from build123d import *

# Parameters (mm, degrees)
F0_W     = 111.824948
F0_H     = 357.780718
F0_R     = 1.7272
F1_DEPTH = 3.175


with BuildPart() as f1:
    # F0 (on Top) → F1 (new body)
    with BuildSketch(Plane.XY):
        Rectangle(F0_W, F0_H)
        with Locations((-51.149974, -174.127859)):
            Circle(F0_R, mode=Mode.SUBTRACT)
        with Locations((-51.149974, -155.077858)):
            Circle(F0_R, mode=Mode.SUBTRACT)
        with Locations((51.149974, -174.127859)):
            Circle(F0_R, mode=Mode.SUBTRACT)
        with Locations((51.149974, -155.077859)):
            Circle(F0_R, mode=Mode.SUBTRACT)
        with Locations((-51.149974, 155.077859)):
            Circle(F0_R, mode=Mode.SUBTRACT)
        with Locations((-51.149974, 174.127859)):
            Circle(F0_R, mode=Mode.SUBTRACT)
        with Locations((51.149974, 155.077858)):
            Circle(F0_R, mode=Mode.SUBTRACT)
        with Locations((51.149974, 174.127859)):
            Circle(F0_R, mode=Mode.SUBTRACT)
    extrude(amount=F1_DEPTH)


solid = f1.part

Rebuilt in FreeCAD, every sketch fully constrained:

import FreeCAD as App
import Part
import Sketcher
Q = App.Units.Quantity


def add_polygon(sketch, points):
    """Adds a closed chain of lines whose ends are joined by coincident constraints."""
    first, n = sketch.GeometryCount, len(points)
    for a, b in zip(points, points[1:] + points[:1]):
        sketch.addGeometry(Part.LineSegment(App.Vector(*a, 0), App.Vector(*b, 0)), False)
    for i in range(n):
        sketch.addConstraint(Sketcher.Constraint("Coincident", first + i, 2, first + (i + 1) % n, 1))

doc = App.newDocument("Part")
body = doc.addObject("PartDesign::Body", "Body")

# Sketch on XY plane
sketch1 = doc.addObject("Sketcher::SketchObject", "Sketch")
body.addObject(sketch1)
sketch1.AttachmentSupport = (doc.XY_Plane, [""])
sketch1.MapMode = "FlatFace"
add_polygon(sketch1, [(-55.9, 178.9), (-55.9, -178.9), (55.9, -178.9), (55.9, 178.9)])  # lines 0-3
sketch1.addGeometry(Part.Circle(App.Vector(-51.1, -174.1, 0), App.Vector(0, 0, 1), 1.7), False)  # 4
sketch1.addGeometry(Part.Circle(App.Vector(-51.1, -155.1, 0), App.Vector(0, 0, 1), 1.7), False)  # 5
sketch1.addGeometry(Part.Circle(App.Vector(51.1, -174.1, 0), App.Vector(0, 0, 1), 1.7), False)  # 6
sketch1.addGeometry(Part.Circle(App.Vector(51.1, -155.1, 0), App.Vector(0, 0, 1), 1.7), False)  # 7
sketch1.addGeometry(Part.Circle(App.Vector(-51.1, 155.1, 0), App.Vector(0, 0, 1), 1.7), False)  # 8
sketch1.addGeometry(Part.Circle(App.Vector(-51.1, 174.1, 0), App.Vector(0, 0, 1), 1.7), False)  # 9
sketch1.addGeometry(Part.Circle(App.Vector(51.1, 155.1, 0), App.Vector(0, 0, 1), 1.7), False)  # 10
sketch1.addGeometry(Part.Circle(App.Vector(51.1, 174.1, 0), App.Vector(0, 0, 1), 1.7), False)  # 11
sketch1.addConstraint(Sketcher.Constraint("Vertical", 0))
sketch1.addConstraint(Sketcher.Constraint("Horizontal", 1))
sketch1.addConstraint(Sketcher.Constraint("Vertical", 2))
sketch1.addConstraint(Sketcher.Constraint("Horizontal", 3))
sketch1.addConstraint(Sketcher.Constraint("Equal", 4, 5))
sketch1.addConstraint(Sketcher.Constraint("Equal", 5, 6))
sketch1.addConstraint(Sketcher.Constraint("Equal", 6, 7))
sketch1.addConstraint(Sketcher.Constraint("Equal", 7, 8))
sketch1.addConstraint(Sketcher.Constraint("Equal", 8, 9))
sketch1.addConstraint(Sketcher.Constraint("Equal", 9, 10))
sketch1.addConstraint(Sketcher.Constraint("Equal", 10, 11))
sketch1.addConstraint(Sketcher.Constraint("Symmetric", 7, 3, 8, 3, -1, 1))
sketch1.addConstraint(Sketcher.Constraint("Symmetric", 6, 3, 9, 3, -1, 1))
sketch1.addConstraint(Sketcher.Constraint("Symmetric", 5, 3, 10, 3, -1, 1))
sketch1.addConstraint(Sketcher.Constraint("Symmetric", 4, 3, 11, 3, -1, 1))
sketch1.addConstraint(Sketcher.Constraint("Symmetric", 0, 2, 2, 2, -1, 1))
sketch1.addConstraint(Sketcher.Constraint("Symmetric", 4, 3, 6, 3, -2))
sketch1.addConstraint(Sketcher.Constraint("Symmetric", 5, 3, 7, 3, -2))
sketch1.addConstraint(Sketcher.Constraint("Vertical", 4, 3, 5, 3))
sketch1.addConstraint(Sketcher.Constraint("Diameter", 4, Q("0.136 in")))
sketch1.addConstraint(Sketcher.Constraint("DistanceY", 4, 3, 5, 3, Q("0.75 in")))
sketch1.addConstraint(Sketcher.Constraint("DistanceX", 0, 2, 4, 3, Q("0.1875 in")))
sketch1.addConstraint(Sketcher.Constraint("DistanceY", 0, 2, 4, 3, Q("0.1875 in")))
sketch1.addConstraint(Sketcher.Constraint("DistanceX", 1, 1, 1, 2, 111.824948))
sketch1.addConstraint(Sketcher.Constraint("DistanceY", 0, 2, 0, 1, 357.780718))
pad1 = doc.addObject("PartDesign::Pad", "Pad")
body.addObject(pad1)
pad1.Profile = sketch1
pad1.Length = Q("0.125 in")

doc.recompute()
